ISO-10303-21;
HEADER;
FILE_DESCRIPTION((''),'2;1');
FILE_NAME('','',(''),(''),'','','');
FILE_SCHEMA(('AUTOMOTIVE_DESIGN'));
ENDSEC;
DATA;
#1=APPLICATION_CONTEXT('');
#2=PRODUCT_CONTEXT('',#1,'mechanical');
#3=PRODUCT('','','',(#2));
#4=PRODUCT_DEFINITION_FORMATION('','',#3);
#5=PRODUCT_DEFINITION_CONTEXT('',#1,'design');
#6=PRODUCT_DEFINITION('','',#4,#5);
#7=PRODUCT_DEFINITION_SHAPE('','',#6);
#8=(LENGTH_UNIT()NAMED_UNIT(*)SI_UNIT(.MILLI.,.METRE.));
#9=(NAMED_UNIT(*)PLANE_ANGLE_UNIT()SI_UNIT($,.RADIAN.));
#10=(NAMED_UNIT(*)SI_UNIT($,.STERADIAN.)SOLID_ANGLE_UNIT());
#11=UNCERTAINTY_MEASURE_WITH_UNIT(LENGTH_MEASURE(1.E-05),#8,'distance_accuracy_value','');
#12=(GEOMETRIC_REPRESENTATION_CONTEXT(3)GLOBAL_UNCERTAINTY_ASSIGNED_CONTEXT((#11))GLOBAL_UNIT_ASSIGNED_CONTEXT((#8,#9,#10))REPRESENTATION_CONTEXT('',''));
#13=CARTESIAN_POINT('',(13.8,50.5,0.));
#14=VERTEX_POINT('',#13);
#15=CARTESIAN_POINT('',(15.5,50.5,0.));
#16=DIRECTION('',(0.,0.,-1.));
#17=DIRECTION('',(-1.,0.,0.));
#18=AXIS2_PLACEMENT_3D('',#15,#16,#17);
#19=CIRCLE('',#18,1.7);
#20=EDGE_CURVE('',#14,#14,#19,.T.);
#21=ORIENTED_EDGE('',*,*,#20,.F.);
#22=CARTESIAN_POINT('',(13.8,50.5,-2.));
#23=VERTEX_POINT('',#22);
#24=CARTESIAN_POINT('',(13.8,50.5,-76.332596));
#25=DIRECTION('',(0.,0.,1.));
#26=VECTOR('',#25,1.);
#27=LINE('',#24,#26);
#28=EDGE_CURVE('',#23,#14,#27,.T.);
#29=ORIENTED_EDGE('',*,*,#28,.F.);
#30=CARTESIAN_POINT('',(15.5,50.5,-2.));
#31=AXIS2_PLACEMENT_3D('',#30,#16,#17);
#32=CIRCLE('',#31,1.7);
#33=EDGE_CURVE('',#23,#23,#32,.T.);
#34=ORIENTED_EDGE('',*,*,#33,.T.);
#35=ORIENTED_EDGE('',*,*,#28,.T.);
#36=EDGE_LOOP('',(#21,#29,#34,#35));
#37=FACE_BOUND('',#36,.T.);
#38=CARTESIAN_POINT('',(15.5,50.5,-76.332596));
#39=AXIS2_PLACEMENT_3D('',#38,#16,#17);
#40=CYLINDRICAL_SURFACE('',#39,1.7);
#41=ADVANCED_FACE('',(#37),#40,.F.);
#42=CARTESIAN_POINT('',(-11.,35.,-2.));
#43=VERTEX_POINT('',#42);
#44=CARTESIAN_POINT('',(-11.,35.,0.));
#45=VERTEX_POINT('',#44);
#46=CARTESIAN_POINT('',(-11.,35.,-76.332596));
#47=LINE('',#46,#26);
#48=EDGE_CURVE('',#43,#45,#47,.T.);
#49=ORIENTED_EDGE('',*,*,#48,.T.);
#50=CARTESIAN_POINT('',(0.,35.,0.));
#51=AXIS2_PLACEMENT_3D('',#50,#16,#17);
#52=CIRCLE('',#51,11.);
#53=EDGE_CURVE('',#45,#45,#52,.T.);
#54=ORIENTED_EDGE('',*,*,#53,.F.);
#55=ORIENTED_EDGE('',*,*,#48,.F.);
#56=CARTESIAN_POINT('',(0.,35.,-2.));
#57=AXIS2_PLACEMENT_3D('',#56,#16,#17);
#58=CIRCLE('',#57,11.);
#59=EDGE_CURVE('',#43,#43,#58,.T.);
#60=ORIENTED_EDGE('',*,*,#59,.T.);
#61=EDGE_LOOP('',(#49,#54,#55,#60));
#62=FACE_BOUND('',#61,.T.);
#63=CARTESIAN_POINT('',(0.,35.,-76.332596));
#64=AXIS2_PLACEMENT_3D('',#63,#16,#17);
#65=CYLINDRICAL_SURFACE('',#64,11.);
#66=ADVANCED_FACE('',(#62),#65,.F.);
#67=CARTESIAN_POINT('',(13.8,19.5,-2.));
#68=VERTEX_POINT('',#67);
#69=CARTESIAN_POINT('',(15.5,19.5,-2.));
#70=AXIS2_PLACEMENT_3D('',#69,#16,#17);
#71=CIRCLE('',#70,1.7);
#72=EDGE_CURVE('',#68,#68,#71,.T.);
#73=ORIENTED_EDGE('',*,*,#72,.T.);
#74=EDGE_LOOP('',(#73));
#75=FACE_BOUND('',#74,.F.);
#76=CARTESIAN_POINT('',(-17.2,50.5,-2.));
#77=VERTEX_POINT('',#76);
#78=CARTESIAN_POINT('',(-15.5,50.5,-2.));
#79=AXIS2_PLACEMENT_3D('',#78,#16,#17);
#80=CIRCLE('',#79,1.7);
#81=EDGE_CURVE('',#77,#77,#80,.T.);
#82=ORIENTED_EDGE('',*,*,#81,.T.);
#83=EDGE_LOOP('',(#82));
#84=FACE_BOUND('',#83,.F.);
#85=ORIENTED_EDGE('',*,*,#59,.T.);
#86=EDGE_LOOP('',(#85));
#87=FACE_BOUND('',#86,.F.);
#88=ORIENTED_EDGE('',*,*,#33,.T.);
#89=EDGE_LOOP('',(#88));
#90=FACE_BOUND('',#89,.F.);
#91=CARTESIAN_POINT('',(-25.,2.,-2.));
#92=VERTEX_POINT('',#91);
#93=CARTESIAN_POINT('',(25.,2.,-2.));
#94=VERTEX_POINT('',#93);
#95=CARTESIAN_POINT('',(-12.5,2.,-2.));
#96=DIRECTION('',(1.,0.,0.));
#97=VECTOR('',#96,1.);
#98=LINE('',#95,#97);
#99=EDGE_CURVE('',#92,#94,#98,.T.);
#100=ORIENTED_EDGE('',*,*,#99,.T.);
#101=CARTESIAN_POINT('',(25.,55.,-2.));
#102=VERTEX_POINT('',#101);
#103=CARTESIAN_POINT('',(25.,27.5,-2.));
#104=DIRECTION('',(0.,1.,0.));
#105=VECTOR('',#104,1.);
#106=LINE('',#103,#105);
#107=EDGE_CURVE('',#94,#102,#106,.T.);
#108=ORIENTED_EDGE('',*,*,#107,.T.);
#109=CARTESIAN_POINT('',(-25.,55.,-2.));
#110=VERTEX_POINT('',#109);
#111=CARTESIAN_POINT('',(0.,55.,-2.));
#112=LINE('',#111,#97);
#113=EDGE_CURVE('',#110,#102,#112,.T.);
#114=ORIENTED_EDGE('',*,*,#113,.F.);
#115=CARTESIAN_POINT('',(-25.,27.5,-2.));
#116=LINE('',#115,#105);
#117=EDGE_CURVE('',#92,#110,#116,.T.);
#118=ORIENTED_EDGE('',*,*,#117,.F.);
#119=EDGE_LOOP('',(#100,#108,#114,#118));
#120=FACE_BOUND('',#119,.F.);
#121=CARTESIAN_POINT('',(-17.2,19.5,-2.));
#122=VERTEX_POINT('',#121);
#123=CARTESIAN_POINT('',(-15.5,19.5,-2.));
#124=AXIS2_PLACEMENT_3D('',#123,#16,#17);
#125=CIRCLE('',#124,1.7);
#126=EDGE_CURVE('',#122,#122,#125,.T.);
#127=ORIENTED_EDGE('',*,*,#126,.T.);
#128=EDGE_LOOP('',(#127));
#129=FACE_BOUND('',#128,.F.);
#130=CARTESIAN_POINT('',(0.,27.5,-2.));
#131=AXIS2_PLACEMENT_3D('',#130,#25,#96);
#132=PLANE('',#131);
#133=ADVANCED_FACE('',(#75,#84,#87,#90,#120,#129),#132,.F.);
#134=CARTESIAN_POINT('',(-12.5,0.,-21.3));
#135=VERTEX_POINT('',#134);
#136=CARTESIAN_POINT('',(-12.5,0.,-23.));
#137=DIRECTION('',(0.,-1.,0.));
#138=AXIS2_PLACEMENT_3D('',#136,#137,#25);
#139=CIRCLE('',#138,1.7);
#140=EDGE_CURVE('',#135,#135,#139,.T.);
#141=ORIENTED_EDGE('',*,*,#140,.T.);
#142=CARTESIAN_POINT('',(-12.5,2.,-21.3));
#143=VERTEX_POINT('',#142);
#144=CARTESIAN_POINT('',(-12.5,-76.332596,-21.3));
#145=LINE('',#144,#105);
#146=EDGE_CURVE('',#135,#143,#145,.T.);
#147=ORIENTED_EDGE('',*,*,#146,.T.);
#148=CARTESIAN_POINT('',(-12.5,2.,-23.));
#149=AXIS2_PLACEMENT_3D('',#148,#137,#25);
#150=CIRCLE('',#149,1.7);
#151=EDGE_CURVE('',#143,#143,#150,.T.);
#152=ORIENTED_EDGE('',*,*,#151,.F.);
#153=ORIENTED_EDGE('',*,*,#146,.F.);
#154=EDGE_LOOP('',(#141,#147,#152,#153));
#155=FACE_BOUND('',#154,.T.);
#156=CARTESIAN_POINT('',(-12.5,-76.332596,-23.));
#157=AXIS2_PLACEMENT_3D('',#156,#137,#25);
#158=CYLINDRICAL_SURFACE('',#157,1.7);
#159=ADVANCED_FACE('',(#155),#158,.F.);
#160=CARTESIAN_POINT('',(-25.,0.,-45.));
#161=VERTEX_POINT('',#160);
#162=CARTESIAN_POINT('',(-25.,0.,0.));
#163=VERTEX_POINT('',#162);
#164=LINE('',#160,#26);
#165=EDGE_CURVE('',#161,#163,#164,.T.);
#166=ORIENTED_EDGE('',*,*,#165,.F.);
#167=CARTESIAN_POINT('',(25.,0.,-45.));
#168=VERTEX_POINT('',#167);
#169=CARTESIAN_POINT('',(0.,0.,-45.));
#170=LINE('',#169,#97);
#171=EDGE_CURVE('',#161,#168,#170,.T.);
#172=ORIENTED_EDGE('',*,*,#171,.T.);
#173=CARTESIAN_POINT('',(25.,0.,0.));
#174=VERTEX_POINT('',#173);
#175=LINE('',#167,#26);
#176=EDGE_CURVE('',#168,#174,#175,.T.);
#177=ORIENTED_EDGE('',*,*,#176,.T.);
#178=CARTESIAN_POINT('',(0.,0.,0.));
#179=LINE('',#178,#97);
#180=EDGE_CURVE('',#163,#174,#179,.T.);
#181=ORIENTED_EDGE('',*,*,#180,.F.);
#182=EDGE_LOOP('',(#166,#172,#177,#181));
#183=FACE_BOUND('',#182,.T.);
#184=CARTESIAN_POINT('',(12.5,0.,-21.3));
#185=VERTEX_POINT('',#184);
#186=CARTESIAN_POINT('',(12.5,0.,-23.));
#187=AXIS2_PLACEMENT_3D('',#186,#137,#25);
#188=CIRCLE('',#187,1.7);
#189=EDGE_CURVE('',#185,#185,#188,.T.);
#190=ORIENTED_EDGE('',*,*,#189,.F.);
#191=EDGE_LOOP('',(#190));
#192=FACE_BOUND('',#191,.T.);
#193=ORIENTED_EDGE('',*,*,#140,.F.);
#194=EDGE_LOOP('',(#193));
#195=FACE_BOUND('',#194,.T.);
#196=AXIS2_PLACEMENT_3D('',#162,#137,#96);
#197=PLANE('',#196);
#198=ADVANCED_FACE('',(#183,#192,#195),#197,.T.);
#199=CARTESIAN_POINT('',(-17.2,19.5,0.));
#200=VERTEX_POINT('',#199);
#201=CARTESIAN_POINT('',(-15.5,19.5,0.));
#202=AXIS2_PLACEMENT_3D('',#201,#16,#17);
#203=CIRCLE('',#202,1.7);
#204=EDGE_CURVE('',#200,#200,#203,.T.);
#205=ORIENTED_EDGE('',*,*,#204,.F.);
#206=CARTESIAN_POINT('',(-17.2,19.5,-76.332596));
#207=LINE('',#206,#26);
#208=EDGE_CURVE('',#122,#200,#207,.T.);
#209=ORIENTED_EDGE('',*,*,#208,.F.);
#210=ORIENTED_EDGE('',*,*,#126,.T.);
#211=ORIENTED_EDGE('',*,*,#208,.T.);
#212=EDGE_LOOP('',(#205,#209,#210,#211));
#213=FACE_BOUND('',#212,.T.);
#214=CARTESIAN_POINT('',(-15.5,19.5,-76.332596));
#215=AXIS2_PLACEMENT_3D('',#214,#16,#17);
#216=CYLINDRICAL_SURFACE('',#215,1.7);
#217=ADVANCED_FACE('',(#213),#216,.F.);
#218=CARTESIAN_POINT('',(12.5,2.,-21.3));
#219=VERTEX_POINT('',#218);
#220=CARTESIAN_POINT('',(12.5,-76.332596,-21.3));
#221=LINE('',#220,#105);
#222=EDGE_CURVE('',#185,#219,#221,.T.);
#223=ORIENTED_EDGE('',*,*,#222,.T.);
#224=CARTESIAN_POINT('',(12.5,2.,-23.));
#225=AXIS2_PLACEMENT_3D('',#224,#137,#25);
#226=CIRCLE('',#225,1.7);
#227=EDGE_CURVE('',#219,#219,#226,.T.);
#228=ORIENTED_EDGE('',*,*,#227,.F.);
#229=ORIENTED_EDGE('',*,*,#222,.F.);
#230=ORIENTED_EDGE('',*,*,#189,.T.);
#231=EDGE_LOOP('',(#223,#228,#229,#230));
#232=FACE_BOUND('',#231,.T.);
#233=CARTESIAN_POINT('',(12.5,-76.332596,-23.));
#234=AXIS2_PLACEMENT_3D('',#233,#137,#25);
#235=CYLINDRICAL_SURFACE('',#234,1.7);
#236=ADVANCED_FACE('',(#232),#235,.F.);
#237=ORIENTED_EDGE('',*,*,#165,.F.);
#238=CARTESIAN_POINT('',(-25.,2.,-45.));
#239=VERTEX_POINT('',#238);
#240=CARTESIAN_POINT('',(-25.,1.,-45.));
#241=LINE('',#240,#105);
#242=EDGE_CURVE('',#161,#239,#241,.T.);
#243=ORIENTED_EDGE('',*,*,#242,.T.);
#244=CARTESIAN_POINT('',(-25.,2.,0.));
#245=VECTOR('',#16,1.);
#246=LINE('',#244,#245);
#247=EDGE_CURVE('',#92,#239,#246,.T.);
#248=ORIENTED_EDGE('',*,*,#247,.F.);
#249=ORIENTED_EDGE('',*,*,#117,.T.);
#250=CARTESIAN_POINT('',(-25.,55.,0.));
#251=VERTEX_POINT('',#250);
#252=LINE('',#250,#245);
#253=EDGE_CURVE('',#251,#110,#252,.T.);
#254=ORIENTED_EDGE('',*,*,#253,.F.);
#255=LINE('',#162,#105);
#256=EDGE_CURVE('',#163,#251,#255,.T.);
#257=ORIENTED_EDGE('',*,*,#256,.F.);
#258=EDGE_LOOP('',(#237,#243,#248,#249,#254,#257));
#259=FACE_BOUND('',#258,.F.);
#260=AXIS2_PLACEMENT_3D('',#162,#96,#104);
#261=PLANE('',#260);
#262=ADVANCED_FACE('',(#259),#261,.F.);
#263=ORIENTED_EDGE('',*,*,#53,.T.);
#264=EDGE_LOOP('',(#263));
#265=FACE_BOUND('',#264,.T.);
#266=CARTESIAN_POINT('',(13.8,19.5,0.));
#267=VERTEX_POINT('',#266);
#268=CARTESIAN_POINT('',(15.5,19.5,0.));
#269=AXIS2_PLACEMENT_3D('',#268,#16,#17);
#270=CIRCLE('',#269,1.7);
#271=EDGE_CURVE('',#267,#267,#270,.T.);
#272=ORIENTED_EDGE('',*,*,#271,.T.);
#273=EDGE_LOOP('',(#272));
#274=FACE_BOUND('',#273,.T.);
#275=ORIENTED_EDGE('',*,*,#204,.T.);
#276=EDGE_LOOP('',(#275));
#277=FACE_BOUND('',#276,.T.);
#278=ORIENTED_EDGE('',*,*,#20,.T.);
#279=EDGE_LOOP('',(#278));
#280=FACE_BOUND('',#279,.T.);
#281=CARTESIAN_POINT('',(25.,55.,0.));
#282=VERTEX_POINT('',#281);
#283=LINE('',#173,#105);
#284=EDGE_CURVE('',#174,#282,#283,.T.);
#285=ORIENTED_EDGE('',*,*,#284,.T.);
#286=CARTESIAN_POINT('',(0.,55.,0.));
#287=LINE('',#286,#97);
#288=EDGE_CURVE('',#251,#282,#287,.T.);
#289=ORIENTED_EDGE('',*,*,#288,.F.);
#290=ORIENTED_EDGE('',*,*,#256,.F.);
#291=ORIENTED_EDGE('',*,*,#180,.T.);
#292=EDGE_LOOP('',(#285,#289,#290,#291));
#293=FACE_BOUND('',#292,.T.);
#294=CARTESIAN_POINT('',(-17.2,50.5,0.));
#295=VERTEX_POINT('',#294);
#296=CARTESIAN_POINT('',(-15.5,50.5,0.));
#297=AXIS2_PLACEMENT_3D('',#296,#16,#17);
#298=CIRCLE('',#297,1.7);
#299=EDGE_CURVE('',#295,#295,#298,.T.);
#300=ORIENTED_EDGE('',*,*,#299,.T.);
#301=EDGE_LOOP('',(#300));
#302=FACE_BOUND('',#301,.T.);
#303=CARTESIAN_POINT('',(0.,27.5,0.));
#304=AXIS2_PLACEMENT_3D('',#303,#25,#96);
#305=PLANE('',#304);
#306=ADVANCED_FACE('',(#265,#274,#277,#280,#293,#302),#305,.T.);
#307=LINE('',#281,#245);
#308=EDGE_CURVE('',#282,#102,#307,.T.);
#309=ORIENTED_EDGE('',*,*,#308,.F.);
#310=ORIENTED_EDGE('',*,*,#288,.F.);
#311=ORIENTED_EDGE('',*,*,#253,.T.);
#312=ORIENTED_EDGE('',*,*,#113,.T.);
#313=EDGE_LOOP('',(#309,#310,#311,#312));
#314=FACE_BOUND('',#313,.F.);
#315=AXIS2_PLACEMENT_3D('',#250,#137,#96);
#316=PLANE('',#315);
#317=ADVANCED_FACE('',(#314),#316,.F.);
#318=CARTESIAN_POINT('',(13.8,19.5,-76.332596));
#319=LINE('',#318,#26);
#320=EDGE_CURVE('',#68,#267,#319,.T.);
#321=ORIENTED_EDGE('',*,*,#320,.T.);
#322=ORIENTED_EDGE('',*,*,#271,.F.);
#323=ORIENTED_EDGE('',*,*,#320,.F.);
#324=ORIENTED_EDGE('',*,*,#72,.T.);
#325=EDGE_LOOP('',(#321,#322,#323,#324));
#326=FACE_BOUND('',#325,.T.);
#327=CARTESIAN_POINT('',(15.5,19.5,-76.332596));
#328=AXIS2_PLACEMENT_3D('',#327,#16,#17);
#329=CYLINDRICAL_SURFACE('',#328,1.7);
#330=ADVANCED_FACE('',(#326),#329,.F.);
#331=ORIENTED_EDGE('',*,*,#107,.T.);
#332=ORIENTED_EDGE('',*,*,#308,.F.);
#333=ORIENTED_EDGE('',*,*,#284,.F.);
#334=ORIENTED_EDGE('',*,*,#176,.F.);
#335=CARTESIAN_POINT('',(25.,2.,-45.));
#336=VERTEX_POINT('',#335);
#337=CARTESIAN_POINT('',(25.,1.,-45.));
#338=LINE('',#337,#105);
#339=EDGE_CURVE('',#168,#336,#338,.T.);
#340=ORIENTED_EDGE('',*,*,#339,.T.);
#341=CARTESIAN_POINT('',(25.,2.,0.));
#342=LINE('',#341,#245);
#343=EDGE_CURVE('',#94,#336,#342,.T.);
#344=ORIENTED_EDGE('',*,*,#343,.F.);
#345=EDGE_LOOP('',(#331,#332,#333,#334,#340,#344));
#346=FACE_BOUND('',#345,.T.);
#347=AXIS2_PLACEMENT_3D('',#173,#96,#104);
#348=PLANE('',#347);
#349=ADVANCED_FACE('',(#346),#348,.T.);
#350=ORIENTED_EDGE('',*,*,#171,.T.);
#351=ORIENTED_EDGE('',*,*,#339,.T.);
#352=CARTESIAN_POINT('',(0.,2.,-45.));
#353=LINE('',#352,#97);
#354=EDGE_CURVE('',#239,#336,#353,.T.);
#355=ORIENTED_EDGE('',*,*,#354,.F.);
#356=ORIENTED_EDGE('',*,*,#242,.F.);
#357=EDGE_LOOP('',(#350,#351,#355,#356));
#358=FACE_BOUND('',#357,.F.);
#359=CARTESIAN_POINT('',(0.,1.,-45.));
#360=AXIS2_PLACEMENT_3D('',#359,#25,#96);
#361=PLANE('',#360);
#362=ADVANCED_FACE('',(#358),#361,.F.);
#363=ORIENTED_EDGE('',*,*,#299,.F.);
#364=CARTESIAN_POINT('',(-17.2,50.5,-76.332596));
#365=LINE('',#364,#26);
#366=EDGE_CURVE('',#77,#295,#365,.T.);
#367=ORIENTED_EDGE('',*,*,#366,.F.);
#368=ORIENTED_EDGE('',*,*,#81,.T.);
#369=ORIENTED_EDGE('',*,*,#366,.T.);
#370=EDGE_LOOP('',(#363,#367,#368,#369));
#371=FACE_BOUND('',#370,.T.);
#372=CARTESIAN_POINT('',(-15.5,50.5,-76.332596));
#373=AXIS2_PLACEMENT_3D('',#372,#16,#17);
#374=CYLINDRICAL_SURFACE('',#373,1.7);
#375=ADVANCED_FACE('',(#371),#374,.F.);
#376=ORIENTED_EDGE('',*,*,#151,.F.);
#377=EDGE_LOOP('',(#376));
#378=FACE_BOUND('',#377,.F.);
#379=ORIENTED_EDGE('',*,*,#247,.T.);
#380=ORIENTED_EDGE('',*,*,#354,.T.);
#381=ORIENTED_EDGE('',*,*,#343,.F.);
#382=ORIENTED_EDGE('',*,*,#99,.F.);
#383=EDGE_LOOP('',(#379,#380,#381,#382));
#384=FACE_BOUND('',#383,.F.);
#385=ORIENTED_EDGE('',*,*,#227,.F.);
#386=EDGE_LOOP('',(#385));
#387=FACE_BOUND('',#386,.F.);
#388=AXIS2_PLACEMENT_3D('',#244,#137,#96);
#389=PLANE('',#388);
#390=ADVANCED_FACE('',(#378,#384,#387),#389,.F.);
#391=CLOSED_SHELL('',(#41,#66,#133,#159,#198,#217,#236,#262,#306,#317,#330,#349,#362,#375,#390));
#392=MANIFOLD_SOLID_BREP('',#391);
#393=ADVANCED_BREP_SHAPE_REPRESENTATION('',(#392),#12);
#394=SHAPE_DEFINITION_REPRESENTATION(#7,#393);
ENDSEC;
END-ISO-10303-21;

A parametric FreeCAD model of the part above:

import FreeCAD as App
import Part
import Sketcher
from FreeCAD import Vector

doc = App.newDocument("Part")
params = doc.addObject("Spreadsheet::Sheet", "Params")
for row, (alias, value) in enumerate([
    ("sketch1_width", "50 mm"),
    ("sketch1_height", "55 mm"),
    ("pad1_length", "2 mm"),
    ("sketch2_width", "50 mm"),
    ("sketch2_height", "2 mm"),
    ("pad2_length", "45 mm"),
    ("sketch3_diameter", "3.4 mm"),
    ("sketch4_diameter", "22 mm"),
    ("sketch5_diameter", "3.4 mm"),
], start=1):
    params.set(f"A{row}", alias)
    params.set(f"B{row}", "=" + value)
    params.setAlias(f"B{row}", alias)

body = doc.addObject("PartDesign::Body", "Body")

# Sketch on XY plane
sketch1 = body.newObject("Sketcher::SketchObject", "Sketch")
sketch1.AttachmentSupport = (doc.getObject("XY_Plane"), [""])
sketch1.MapMode = "FlatFace"
sketch1.addGeometry(Part.LineSegment(Vector(-25, 55, 0), Vector(-25, 0, 0)), False)
sketch1.addGeometry(Part.LineSegment(Vector(-25, 0, 0), Vector(25, 0, 0)), False)
sketch1.addGeometry(Part.LineSegment(Vector(25, 0, 0), Vector(25, 55, 0)), False)
sketch1.addGeometry(Part.LineSegment(Vector(25, 55, 0), Vector(-25, 55, 0)), False)
sketch1.addConstraint(Sketcher.Constraint("Coincident", 0, 2, 1, 1))
sketch1.addConstraint(Sketcher.Constraint("Coincident", 1, 2, 2, 1))
sketch1.addConstraint(Sketcher.Constraint("Coincident", 2, 2, 3, 1))
sketch1.addConstraint(Sketcher.Constraint("Coincident", 3, 2, 0, 1))
sketch1.addConstraint(Sketcher.Constraint("Vertical", 0))
sketch1.addConstraint(Sketcher.Constraint("Horizontal", 1))
sketch1.addConstraint(Sketcher.Constraint("Vertical", 2))
sketch1.addConstraint(Sketcher.Constraint("Horizontal", 3))
sketch1.addConstraint(Sketcher.Constraint("Symmetric", 0, 2, 1, 2, -1, 1))
sketch1.addConstraint(Sketcher.Constraint("DistanceX", 1, 1, 1, 2, 50.0))
sketch1.addConstraint(Sketcher.Constraint("DistanceY", 0, 2, 0, 1, 55.0))
sketch1.setExpression("Constraints[9]", "Params.sketch1_width")
sketch1.setExpression("Constraints[10]", "Params.sketch1_height")
pad1 = body.newObject("PartDesign::Pad", "Pad")
pad1.Profile = sketch1
pad1.setExpression("Length", "Params.pad1_length")
pad1.Reversed = True

# Sketch on XY plane
sketch2 = body.newObject("Sketcher::SketchObject", "Sketch001")
sketch2.AttachmentSupport = (doc.getObject("XY_Plane"), [""])
sketch2.MapMode = "FlatFace"
sketch2.addGeometry(Part.LineSegment(Vector(-25, 2, 0), Vector(-25, 0, 0)), False)
sketch2.addGeometry(Part.LineSegment(Vector(-25, 0, 0), Vector(25, 0, 0)), False)
sketch2.addGeometry(Part.LineSegment(Vector(25, 0, 0), Vector(25, 2, 0)), False)
sketch2.addGeometry(Part.LineSegment(Vector(25, 2, 0), Vector(-25, 2, 0)), False)
sketch2.addConstraint(Sketcher.Constraint("Coincident", 0, 2, 1, 1))
sketch2.addConstraint(Sketcher.Constraint("Coincident", 1, 2, 2, 1))
sketch2.addConstraint(Sketcher.Constraint("Coincident", 2, 2, 3, 1))
sketch2.addConstraint(Sketcher.Constraint("Coincident", 3, 2, 0, 1))
sketch2.addConstraint(Sketcher.Constraint("Vertical", 0))
sketch2.addConstraint(Sketcher.Constraint("Horizontal", 1))
sketch2.addConstraint(Sketcher.Constraint("Vertical", 2))
sketch2.addConstraint(Sketcher.Constraint("Horizontal", 3))
sketch2.addConstraint(Sketcher.Constraint("Symmetric", 0, 2, 1, 2, -1, 1))
sketch2.addConstraint(Sketcher.Constraint("DistanceX", 1, 1, 1, 2, 50.0))
sketch2.addConstraint(Sketcher.Constraint("DistanceY", 0, 2, 0, 1, 2.0))
sketch2.setExpression("Constraints[9]", "Params.sketch2_width")
sketch2.setExpression("Constraints[10]", "Params.sketch2_height")
pad2 = body.newObject("PartDesign::Pad", "Pad001")
pad2.Profile = sketch2
pad2.setExpression("Length", "Params.pad2_length")
pad2.Reversed = True

# Sketch on XY plane
sketch3 = body.newObject("Sketcher::SketchObject", "Sketch002")
sketch3.AttachmentSupport = (doc.getObject("XY_Plane"), [""])
sketch3.MapMode = "FlatFace"
sketch3.addGeometry(Part.Circle(Vector(-15.5, 19.5, 0), Vector(0, 0, 1), 1.7), False)
sketch3.addGeometry(Part.Circle(Vector(-15.5, 50.5, 0), Vector(0, 0, 1), 1.7), False)
sketch3.addGeometry(Part.Circle(Vector(15.5, 19.5, 0), Vector(0, 0, 1), 1.7), False)
sketch3.addGeometry(Part.Circle(Vector(15.5, 50.5, 0), Vector(0, 0, 1), 1.7), False)
sketch3.addConstraint(Sketcher.Constraint("Equal", 0, 1))
sketch3.addConstraint(Sketcher.Constraint("Equal", 1, 2))
sketch3.addConstraint(Sketcher.Constraint("Equal", 2, 3))
sketch3.addConstraint(Sketcher.Constraint("Symmetric", 0, 3, 2, 3, -2))
sketch3.addConstraint(Sketcher.Constraint("Symmetric", 1, 3, 3, 3, -2))
sketch3.addConstraint(Sketcher.Constraint("Vertical", 0, 3, 1, 3))
sketch3.addConstraint(Sketcher.Constraint("Diameter", 0, 3.4))
sketch3.addConstraint(Sketcher.Constraint("DistanceY", 0, 3, 1, 3, 31.0))
sketch3.addConstraint(Sketcher.Constraint("DistanceX", 0, 3, 2, 3, 31.0))
sketch3.addConstraint(Sketcher.Constraint("DistanceY", -1, 1, 0, 3, 19.5))
sketch3.setExpression("Constraints[6]", "Params.sketch3_diameter")
pocket1 = body.newObject("PartDesign::Pocket", "Pocket")
pocket1.Profile = sketch3
pocket1.Type = "ThroughAll"
pocket1.Midplane = True

# Sketch on XY plane
sketch4 = body.newObject("Sketcher::SketchObject", "Sketch003")
sketch4.AttachmentSupport = (doc.getObject("XY_Plane"), [""])
sketch4.MapMode = "FlatFace"
sketch4.addGeometry(Part.Circle(Vector(0, 35, 0), Vector(0, 0, 1), 11), False)
sketch4.addConstraint(Sketcher.Constraint("PointOnObject", 0, 3, -2))
sketch4.addConstraint(Sketcher.Constraint("Diameter", 0, 22.0))
sketch4.addConstraint(Sketcher.Constraint("DistanceY", -1, 1, 0, 3, 35.0))
sketch4.setExpression("Constraints[1]", "Params.sketch4_diameter")
pocket2 = body.newObject("PartDesign::Pocket", "Pocket001")
pocket2.Profile = sketch4
pocket2.Type = "ThroughAll"
pocket2.Midplane = True

# Sketch on XZ plane
sketch5 = body.newObject("Sketcher::SketchObject", "Sketch004")
sketch5.AttachmentSupport = (doc.getObject("XZ_Plane"), [""])
sketch5.MapMode = "FlatFace"
sketch5.addGeometry(Part.Circle(Vector(-12.5, -23, 0), Vector(0, 0, 1), 1.7), False)
sketch5.addGeometry(Part.Circle(Vector(12.5, -23, 0), Vector(0, 0, 1), 1.7), False)
sketch5.addConstraint(Sketcher.Constraint("Equal", 0, 1))
sketch5.addConstraint(Sketcher.Constraint("Symmetric", 0, 3, 1, 3, -2))
sketch5.addConstraint(Sketcher.Constraint("Diameter", 0, 3.4))
sketch5.addConstraint(Sketcher.Constraint("DistanceY", 0, 3, -1, 1, 23.0))
sketch5.addConstraint(Sketcher.Constraint("DistanceX", 0, 3, 1, 3, 25.0))
sketch5.setExpression("Constraints[2]", "Params.sketch5_diameter")
pocket3 = body.newObject("PartDesign::Pocket", "Pocket002")
pocket3.Profile = sketch5
pocket3.Type = "ThroughAll"
pocket3.Midplane = True

doc.recompute()
